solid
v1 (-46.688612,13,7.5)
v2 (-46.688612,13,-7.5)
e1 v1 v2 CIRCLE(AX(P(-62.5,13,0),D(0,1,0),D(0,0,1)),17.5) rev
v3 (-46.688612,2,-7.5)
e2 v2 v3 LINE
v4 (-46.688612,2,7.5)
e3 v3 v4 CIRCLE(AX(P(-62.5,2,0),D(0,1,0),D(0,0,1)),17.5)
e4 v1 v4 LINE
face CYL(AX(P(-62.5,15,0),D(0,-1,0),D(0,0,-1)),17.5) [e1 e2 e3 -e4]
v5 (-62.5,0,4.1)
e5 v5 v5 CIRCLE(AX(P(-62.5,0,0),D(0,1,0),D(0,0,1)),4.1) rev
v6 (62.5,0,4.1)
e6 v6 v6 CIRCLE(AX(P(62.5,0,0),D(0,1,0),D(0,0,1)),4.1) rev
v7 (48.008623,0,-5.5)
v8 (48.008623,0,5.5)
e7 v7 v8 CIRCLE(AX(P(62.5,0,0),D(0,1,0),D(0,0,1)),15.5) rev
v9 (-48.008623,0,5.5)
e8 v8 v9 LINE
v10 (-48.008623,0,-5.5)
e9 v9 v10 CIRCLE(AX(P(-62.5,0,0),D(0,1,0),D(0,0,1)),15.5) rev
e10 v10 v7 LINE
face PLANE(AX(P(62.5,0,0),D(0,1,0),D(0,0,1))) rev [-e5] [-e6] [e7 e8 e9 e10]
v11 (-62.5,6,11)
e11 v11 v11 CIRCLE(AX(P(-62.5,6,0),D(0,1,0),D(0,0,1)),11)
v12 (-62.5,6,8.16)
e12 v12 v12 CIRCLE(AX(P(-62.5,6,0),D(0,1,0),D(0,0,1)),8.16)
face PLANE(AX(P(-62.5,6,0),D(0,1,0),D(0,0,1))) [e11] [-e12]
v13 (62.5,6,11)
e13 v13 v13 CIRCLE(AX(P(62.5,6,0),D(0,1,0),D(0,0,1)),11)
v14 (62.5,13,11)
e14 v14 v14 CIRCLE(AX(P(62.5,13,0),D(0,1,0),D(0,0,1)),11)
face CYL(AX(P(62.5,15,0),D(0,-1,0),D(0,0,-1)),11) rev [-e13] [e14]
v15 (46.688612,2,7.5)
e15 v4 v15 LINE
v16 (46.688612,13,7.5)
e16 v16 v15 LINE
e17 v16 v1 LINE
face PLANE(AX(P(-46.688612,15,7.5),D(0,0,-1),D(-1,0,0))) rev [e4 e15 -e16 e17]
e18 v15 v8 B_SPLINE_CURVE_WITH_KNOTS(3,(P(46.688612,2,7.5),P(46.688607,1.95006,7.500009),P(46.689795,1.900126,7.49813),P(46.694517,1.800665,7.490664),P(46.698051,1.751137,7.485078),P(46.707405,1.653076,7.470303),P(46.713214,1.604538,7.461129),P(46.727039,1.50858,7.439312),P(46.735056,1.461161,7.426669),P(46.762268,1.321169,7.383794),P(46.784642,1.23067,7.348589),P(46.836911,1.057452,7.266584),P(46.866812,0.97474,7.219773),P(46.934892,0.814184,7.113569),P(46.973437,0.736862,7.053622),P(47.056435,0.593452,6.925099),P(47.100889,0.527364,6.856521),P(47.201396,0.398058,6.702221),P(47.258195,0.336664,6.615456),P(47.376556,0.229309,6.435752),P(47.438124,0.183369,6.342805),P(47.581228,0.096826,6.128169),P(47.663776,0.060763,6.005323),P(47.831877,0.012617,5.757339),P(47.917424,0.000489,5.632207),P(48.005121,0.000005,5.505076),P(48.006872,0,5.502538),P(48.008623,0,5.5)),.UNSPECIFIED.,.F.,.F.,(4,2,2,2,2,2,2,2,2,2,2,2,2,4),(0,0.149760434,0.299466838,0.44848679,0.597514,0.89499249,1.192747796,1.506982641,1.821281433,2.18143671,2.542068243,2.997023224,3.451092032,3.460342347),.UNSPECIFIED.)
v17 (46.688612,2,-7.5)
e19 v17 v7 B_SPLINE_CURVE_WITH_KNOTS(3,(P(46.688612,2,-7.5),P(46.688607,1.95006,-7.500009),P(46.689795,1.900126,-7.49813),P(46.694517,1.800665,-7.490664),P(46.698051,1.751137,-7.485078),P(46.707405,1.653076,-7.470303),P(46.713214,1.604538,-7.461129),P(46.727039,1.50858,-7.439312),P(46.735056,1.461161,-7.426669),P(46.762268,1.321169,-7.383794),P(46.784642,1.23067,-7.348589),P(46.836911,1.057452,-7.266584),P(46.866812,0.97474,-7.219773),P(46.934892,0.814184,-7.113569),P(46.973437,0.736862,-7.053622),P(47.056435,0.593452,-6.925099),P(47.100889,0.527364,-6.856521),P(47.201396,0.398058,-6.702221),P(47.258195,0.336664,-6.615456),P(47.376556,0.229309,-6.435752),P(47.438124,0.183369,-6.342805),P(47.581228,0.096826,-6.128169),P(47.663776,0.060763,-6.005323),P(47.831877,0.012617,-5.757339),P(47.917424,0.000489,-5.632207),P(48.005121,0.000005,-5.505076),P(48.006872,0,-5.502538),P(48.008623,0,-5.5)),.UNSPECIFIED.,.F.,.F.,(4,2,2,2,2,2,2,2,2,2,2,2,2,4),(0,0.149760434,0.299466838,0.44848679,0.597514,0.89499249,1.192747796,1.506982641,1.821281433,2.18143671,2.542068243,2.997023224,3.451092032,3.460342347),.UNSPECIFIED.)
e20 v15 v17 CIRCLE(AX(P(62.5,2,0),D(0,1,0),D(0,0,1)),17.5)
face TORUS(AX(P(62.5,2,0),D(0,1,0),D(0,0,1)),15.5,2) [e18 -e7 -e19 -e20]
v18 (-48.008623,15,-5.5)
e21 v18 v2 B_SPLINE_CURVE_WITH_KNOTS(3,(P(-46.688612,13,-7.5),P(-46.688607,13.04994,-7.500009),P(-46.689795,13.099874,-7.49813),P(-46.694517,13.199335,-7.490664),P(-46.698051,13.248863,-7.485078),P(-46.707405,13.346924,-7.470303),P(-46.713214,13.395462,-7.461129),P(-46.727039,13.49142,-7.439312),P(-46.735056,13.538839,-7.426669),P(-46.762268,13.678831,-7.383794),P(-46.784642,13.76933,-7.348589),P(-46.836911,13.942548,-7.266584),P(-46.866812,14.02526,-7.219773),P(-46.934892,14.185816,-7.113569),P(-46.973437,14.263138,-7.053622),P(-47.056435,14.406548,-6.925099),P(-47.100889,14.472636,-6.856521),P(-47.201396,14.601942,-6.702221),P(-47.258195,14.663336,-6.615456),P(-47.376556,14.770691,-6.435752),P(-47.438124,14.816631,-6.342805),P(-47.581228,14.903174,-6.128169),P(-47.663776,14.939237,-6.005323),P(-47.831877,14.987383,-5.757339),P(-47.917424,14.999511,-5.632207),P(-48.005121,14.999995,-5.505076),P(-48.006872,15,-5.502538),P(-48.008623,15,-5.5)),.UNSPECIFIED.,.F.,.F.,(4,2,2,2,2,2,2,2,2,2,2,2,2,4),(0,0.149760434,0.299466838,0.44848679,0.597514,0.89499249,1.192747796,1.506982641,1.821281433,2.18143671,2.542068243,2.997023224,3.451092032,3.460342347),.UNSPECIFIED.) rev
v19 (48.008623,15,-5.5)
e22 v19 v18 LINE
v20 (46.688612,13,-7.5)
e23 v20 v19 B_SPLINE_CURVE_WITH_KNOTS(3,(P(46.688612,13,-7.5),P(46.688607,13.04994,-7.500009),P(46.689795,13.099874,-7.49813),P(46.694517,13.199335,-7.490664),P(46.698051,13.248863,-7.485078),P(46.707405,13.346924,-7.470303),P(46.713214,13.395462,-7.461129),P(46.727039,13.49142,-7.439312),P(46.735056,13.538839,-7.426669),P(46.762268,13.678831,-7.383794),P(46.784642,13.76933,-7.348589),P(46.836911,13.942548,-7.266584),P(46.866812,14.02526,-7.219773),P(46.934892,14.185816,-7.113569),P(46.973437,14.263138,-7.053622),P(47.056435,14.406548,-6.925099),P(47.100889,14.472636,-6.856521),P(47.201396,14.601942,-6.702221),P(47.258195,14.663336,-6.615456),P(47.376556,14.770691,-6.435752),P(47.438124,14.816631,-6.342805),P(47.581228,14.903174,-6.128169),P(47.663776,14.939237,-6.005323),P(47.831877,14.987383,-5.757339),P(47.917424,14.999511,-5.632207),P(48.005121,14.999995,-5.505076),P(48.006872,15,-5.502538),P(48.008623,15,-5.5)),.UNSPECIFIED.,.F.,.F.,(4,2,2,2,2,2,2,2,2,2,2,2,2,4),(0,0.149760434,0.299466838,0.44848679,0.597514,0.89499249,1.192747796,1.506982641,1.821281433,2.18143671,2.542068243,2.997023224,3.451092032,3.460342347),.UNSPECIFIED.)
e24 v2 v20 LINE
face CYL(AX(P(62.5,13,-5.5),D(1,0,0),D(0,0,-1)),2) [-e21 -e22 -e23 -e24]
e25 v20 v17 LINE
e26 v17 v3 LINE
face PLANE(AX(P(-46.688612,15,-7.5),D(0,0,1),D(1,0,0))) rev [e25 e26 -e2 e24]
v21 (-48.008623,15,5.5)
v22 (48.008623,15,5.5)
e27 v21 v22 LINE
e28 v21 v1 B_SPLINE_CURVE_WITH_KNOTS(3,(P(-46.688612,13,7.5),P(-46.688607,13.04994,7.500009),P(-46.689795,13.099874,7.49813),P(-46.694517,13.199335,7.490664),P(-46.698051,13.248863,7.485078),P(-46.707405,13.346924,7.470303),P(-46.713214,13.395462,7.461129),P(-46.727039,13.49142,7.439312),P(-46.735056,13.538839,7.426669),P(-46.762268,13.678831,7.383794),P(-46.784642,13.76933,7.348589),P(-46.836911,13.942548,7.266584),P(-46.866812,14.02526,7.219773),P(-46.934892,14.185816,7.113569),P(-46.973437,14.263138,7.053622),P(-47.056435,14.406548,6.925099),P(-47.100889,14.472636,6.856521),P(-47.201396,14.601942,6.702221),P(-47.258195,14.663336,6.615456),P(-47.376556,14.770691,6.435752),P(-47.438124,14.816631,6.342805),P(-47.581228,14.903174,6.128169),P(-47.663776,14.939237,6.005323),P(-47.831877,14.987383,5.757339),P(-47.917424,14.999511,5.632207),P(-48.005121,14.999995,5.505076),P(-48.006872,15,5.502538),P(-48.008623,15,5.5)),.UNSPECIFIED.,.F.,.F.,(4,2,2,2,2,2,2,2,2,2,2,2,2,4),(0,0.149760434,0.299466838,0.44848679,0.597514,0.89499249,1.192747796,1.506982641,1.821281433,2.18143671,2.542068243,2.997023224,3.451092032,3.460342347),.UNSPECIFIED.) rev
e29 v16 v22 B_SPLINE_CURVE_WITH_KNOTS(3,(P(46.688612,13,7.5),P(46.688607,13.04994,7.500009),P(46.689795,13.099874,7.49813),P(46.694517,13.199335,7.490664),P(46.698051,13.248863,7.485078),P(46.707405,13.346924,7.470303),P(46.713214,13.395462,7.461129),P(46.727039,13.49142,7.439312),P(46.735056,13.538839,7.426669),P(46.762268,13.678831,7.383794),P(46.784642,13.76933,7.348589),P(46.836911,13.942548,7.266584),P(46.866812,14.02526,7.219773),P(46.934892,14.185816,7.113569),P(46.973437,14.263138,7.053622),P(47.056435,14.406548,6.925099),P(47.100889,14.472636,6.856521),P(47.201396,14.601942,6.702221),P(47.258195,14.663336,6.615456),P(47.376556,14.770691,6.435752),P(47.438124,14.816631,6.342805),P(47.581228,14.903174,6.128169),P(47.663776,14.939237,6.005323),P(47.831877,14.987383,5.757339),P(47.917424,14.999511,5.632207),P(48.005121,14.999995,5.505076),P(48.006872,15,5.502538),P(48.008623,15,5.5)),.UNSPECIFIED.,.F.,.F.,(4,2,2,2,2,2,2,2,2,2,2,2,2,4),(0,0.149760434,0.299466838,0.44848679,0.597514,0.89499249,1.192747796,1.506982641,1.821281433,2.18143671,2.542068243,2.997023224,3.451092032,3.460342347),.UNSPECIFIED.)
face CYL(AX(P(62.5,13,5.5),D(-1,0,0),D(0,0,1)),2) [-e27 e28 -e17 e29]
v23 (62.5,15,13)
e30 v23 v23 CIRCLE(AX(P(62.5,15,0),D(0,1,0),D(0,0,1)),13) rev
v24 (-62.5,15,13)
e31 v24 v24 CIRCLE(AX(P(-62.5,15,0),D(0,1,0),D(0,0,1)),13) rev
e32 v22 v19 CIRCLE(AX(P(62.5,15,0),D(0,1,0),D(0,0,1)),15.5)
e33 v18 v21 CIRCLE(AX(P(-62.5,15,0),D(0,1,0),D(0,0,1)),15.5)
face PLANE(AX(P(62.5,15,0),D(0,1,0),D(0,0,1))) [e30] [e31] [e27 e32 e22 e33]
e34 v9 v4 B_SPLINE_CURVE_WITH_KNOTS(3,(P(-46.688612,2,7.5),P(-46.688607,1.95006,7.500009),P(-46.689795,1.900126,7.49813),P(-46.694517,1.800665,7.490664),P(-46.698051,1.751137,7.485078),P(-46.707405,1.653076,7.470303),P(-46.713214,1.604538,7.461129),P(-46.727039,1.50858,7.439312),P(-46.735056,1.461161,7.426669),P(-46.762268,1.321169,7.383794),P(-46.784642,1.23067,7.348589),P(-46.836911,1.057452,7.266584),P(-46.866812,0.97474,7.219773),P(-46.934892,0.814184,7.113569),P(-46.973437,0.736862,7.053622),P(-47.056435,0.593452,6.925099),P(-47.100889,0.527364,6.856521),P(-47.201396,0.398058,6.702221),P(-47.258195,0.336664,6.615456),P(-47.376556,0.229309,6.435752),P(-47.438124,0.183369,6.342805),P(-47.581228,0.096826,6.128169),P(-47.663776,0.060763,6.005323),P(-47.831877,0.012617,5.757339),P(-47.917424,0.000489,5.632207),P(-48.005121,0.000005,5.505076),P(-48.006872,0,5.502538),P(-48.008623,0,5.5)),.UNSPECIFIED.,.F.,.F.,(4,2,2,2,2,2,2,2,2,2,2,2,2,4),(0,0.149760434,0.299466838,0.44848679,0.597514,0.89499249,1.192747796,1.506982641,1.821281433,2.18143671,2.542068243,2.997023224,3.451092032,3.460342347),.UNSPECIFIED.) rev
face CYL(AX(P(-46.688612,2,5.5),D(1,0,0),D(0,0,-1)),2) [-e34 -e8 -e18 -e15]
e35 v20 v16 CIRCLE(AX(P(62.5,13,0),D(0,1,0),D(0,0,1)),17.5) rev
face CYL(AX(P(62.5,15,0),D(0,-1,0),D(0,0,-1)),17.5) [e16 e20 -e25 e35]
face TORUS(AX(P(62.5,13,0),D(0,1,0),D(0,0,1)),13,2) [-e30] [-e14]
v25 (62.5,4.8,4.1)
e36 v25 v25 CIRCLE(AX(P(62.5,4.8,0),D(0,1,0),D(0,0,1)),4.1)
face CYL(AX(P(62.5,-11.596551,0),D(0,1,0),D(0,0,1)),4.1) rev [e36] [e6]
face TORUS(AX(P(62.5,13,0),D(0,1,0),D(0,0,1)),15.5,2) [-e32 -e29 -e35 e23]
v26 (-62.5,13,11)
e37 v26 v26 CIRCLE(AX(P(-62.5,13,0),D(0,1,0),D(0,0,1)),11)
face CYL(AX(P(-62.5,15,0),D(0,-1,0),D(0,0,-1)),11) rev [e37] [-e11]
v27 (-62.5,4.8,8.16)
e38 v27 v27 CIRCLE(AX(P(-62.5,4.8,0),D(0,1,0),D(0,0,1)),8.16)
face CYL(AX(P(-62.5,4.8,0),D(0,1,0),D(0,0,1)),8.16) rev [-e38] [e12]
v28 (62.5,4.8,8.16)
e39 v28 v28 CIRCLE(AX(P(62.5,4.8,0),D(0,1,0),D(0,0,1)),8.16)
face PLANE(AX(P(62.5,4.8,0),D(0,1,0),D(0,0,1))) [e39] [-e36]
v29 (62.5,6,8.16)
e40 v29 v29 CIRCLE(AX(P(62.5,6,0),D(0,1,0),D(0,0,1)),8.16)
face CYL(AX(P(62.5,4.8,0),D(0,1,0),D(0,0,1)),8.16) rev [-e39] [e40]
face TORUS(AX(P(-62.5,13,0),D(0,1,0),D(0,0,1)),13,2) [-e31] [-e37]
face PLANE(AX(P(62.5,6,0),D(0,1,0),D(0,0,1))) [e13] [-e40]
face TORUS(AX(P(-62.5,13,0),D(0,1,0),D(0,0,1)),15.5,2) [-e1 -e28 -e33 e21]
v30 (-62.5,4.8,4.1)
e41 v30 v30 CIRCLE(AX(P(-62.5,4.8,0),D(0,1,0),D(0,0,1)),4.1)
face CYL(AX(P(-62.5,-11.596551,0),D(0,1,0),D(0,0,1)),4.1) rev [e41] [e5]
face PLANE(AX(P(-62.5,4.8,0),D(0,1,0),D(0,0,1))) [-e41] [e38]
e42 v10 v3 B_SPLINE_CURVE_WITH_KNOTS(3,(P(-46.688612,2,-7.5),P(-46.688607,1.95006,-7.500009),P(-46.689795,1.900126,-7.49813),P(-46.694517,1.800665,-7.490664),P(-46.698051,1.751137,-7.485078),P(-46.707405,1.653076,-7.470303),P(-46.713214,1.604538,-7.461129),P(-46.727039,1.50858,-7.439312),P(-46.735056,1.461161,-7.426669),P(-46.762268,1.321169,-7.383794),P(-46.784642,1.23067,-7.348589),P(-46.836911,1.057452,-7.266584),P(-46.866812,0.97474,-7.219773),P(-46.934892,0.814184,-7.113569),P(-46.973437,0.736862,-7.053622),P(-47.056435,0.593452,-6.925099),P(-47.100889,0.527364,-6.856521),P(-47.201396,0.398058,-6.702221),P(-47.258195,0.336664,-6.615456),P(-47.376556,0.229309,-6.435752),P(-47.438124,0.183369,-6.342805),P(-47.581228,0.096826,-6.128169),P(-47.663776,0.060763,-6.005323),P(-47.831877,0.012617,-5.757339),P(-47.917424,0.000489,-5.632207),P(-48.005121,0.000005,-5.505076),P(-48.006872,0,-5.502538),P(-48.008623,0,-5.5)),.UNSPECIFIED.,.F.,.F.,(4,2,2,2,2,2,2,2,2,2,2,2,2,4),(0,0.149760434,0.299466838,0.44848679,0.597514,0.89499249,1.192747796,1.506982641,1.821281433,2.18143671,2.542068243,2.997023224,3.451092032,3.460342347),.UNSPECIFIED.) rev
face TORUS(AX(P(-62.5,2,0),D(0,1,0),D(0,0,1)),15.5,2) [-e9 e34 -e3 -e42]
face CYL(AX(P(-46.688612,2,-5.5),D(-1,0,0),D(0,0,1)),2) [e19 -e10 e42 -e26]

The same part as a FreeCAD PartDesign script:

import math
import FreeCAD as App
import Part
import Sketcher

V = App.Vector
Q = App.Units.Quantity


def edges_at(feature, points):
    """Names of the edges that pass closest to the given points."""
    edges = feature.Shape.Edges
    near = lambda p: min(range(len(edges)), key=lambda i: edges[i].distToShape(Part.Vertex(*p))[0])
    return sorted({f"Edge{near(p) + 1}" for p in points})

doc = App.newDocument("Part")
body = doc.addObject("PartDesign::Body", "Body")

# Sketch on XZ plane
sketch1 = body.newObject("Sketcher::SketchObject", "Sketch")
sketch1.AttachmentSupport = (doc.getObject("XZ_Plane"), [""])
sketch1.MapMode = "FlatFace"
sketch1.addGeometry([
    Part.LineSegment(V(47, -8, 0), V(-47, -8, 0)),  # 0
    Part.ArcOfCircle(Part.Circle(V(-62, 0, 0), V(0, 0, 1), 18), math.radians(25), math.radians(335)),  # 1
    Part.LineSegment(V(-47, 8, 0), V(47, 8, 0)),  # 2
    Part.ArcOfCircle(Part.Circle(V(62, 0, 0), V(0, 0, 1), 18), math.radians(-155), math.radians(155)),  # 3
    Part.Circle(V(62, 0, 0), V(0, 0, 1), 11),  # 4
    Part.Circle(V(-62, 0, 0), V(0, 0, 1), 11),  # 5
], False)
sketch1.addConstraint([
    Sketcher.Constraint("Coincident", 0, 2, 1, 2),
    Sketcher.Constraint("Coincident", 1, 1, 2, 1),
    Sketcher.Constraint("Coincident", 2, 2, 3, 2),
    Sketcher.Constraint("Coincident", 3, 1, 0, 1),
    Sketcher.Constraint("Horizontal", 0),
    Sketcher.Constraint("Horizontal", 2),
    Sketcher.Constraint("Coincident", 4, 3, 3, 3),
    Sketcher.Constraint("Coincident", 5, 3, 1, 3),
    Sketcher.Constraint("Equal", 1, 3),
    Sketcher.Constraint("Equal", 4, 5),
    Sketcher.Constraint("Symmetric", 1, 3, 3, 3, -1, 1),
    Sketcher.Constraint("Symmetric", 0, 2, 1, 1, -1),
    Sketcher.Constraint("Diameter", 4, Q("22 mm")),
    Sketcher.Constraint("Radius", 1, Q("17.5 mm")),
    Sketcher.Constraint("DistanceX", 1, 3, 3, 3, Q("125 mm")),
    Sketcher.Constraint("DistanceY", 0, 2, 1, 1, Q("15 mm")),
])
pad1 = body.newObject("PartDesign::Pad", "Pad")
pad1.Profile = sketch1
pad1.Length = 15
pad1.Reversed = True

# Sketch on XZ plane
sketch2 = body.newObject("Sketcher::SketchObject", "Sketch001")
sketch2.AttachmentSupport = (doc.getObject("XZ_Plane"), [""])
sketch2.MapMode = "FlatFace"
sketch2.addGeometry([
    Part.Circle(V(62, 0, 0), V(0, 0, 1), 11),
    Part.Circle(V(-62, 0, 0), V(0, 0, 1), 11),
], False)
sketch2.addConstraint([
    Sketcher.Constraint("Equal", 0, 1),
    Sketcher.Constraint("Symmetric", 0, 3, 1, 3, -1, 1),
    Sketcher.Constraint("PointOnObject", 0, 3, -1),
    Sketcher.Constraint("Diameter", 0, Q("22 mm")),
    Sketcher.Constraint("DistanceX", 1, 3, 0, 3, Q("125 mm")),
])
pad2 = body.newObject("PartDesign::Pad", "Pad001")
pad2.Profile = sketch2
pad2.Length = 6
pad2.Reversed = True

# Sketch on XZ plane
sketch3 = body.newObject("Sketcher::SketchObject", "Sketch002")
sketch3.AttachmentSupport = (doc.getObject("XZ_Plane"), [""])
sketch3.MapMode = "FlatFace"
sketch3.AttachmentOffset = App.Placement(V(0, 0, -6), App.Rotation())
sketch3.addGeometry([
    Part.Circle(V(-62, 0, 0), V(0, 0, 1), 8),
    Part.Circle(V(62, 0, 0), V(0, 0, 1), 8),
], False)
sketch3.addConstraint([
    Sketcher.Constraint("Equal", 0, 1),
    Sketcher.Constraint("Symmetric", 0, 3, 1, 3, -1, 1),
    Sketcher.Constraint("PointOnObject", 0, 3, -1),
    Sketcher.Constraint("Diameter", 0, Q("16.32 mm")),
    Sketcher.Constraint("DistanceX", 0, 3, 1, 3, Q("125 mm")),
])
pocket1 = body.newObject("PartDesign::Pocket", "Pocket")
pocket1.Profile = sketch3
pocket1.Length = 1.2
pocket1.Reversed = True
doc.recompute()

fillet = body.newObject("PartDesign::Fillet", "Fillet")
fillet.Base = (pocket1, edges_at(pocket1, [
    (-80, 15, 0),
    (-62.5, 15, -11),
    (0, 15, 7.5),
    (62.5, 15, -11),
    (80, 15, 0),
    (0, 0, 7.5),
    (-80, 0, 0),
    (0, 0, -7.5),
    (80, 0, 0),
    (0, 15, -7.5),
]))
fillet.Radius = 2

# Sketch on XZ plane
sketch4 = body.newObject("Sketcher::SketchObject", "Sketch003")
sketch4.AttachmentSupport = (doc.getObject("XZ_Plane"), [""])
sketch4.MapMode = "FlatFace"
sketch4.AttachmentOffset = App.Placement(V(0, 0, -4.8), App.Rotation())
sketch4.addGeometry([
    Part.Circle(V(-62.5, 0, 0), V(0, 0, 1), 4.1),
    Part.Circle(V(62.5, 0, 0), V(0, 0, 1), 4.1),
], False)
sketch4.addConstraint([
    Sketcher.Constraint("Equal", 0, 1),
    Sketcher.Constraint("Symmetric", 0, 3, 1, 3, -1, 1),
    Sketcher.Constraint("PointOnObject", 0, 3, -1),
    Sketcher.Constraint("Diameter", 0, Q("8.2 mm")),
    Sketcher.Constraint("DistanceX", 0, 3, 1, 3, Q("125 mm")),
])
pocket2 = body.newObject("PartDesign::Pocket", "Pocket001")
pocket2.Profile = sketch4
pocket2.Length = 4.8
pocket2.Reversed = True

doc.recompute()
